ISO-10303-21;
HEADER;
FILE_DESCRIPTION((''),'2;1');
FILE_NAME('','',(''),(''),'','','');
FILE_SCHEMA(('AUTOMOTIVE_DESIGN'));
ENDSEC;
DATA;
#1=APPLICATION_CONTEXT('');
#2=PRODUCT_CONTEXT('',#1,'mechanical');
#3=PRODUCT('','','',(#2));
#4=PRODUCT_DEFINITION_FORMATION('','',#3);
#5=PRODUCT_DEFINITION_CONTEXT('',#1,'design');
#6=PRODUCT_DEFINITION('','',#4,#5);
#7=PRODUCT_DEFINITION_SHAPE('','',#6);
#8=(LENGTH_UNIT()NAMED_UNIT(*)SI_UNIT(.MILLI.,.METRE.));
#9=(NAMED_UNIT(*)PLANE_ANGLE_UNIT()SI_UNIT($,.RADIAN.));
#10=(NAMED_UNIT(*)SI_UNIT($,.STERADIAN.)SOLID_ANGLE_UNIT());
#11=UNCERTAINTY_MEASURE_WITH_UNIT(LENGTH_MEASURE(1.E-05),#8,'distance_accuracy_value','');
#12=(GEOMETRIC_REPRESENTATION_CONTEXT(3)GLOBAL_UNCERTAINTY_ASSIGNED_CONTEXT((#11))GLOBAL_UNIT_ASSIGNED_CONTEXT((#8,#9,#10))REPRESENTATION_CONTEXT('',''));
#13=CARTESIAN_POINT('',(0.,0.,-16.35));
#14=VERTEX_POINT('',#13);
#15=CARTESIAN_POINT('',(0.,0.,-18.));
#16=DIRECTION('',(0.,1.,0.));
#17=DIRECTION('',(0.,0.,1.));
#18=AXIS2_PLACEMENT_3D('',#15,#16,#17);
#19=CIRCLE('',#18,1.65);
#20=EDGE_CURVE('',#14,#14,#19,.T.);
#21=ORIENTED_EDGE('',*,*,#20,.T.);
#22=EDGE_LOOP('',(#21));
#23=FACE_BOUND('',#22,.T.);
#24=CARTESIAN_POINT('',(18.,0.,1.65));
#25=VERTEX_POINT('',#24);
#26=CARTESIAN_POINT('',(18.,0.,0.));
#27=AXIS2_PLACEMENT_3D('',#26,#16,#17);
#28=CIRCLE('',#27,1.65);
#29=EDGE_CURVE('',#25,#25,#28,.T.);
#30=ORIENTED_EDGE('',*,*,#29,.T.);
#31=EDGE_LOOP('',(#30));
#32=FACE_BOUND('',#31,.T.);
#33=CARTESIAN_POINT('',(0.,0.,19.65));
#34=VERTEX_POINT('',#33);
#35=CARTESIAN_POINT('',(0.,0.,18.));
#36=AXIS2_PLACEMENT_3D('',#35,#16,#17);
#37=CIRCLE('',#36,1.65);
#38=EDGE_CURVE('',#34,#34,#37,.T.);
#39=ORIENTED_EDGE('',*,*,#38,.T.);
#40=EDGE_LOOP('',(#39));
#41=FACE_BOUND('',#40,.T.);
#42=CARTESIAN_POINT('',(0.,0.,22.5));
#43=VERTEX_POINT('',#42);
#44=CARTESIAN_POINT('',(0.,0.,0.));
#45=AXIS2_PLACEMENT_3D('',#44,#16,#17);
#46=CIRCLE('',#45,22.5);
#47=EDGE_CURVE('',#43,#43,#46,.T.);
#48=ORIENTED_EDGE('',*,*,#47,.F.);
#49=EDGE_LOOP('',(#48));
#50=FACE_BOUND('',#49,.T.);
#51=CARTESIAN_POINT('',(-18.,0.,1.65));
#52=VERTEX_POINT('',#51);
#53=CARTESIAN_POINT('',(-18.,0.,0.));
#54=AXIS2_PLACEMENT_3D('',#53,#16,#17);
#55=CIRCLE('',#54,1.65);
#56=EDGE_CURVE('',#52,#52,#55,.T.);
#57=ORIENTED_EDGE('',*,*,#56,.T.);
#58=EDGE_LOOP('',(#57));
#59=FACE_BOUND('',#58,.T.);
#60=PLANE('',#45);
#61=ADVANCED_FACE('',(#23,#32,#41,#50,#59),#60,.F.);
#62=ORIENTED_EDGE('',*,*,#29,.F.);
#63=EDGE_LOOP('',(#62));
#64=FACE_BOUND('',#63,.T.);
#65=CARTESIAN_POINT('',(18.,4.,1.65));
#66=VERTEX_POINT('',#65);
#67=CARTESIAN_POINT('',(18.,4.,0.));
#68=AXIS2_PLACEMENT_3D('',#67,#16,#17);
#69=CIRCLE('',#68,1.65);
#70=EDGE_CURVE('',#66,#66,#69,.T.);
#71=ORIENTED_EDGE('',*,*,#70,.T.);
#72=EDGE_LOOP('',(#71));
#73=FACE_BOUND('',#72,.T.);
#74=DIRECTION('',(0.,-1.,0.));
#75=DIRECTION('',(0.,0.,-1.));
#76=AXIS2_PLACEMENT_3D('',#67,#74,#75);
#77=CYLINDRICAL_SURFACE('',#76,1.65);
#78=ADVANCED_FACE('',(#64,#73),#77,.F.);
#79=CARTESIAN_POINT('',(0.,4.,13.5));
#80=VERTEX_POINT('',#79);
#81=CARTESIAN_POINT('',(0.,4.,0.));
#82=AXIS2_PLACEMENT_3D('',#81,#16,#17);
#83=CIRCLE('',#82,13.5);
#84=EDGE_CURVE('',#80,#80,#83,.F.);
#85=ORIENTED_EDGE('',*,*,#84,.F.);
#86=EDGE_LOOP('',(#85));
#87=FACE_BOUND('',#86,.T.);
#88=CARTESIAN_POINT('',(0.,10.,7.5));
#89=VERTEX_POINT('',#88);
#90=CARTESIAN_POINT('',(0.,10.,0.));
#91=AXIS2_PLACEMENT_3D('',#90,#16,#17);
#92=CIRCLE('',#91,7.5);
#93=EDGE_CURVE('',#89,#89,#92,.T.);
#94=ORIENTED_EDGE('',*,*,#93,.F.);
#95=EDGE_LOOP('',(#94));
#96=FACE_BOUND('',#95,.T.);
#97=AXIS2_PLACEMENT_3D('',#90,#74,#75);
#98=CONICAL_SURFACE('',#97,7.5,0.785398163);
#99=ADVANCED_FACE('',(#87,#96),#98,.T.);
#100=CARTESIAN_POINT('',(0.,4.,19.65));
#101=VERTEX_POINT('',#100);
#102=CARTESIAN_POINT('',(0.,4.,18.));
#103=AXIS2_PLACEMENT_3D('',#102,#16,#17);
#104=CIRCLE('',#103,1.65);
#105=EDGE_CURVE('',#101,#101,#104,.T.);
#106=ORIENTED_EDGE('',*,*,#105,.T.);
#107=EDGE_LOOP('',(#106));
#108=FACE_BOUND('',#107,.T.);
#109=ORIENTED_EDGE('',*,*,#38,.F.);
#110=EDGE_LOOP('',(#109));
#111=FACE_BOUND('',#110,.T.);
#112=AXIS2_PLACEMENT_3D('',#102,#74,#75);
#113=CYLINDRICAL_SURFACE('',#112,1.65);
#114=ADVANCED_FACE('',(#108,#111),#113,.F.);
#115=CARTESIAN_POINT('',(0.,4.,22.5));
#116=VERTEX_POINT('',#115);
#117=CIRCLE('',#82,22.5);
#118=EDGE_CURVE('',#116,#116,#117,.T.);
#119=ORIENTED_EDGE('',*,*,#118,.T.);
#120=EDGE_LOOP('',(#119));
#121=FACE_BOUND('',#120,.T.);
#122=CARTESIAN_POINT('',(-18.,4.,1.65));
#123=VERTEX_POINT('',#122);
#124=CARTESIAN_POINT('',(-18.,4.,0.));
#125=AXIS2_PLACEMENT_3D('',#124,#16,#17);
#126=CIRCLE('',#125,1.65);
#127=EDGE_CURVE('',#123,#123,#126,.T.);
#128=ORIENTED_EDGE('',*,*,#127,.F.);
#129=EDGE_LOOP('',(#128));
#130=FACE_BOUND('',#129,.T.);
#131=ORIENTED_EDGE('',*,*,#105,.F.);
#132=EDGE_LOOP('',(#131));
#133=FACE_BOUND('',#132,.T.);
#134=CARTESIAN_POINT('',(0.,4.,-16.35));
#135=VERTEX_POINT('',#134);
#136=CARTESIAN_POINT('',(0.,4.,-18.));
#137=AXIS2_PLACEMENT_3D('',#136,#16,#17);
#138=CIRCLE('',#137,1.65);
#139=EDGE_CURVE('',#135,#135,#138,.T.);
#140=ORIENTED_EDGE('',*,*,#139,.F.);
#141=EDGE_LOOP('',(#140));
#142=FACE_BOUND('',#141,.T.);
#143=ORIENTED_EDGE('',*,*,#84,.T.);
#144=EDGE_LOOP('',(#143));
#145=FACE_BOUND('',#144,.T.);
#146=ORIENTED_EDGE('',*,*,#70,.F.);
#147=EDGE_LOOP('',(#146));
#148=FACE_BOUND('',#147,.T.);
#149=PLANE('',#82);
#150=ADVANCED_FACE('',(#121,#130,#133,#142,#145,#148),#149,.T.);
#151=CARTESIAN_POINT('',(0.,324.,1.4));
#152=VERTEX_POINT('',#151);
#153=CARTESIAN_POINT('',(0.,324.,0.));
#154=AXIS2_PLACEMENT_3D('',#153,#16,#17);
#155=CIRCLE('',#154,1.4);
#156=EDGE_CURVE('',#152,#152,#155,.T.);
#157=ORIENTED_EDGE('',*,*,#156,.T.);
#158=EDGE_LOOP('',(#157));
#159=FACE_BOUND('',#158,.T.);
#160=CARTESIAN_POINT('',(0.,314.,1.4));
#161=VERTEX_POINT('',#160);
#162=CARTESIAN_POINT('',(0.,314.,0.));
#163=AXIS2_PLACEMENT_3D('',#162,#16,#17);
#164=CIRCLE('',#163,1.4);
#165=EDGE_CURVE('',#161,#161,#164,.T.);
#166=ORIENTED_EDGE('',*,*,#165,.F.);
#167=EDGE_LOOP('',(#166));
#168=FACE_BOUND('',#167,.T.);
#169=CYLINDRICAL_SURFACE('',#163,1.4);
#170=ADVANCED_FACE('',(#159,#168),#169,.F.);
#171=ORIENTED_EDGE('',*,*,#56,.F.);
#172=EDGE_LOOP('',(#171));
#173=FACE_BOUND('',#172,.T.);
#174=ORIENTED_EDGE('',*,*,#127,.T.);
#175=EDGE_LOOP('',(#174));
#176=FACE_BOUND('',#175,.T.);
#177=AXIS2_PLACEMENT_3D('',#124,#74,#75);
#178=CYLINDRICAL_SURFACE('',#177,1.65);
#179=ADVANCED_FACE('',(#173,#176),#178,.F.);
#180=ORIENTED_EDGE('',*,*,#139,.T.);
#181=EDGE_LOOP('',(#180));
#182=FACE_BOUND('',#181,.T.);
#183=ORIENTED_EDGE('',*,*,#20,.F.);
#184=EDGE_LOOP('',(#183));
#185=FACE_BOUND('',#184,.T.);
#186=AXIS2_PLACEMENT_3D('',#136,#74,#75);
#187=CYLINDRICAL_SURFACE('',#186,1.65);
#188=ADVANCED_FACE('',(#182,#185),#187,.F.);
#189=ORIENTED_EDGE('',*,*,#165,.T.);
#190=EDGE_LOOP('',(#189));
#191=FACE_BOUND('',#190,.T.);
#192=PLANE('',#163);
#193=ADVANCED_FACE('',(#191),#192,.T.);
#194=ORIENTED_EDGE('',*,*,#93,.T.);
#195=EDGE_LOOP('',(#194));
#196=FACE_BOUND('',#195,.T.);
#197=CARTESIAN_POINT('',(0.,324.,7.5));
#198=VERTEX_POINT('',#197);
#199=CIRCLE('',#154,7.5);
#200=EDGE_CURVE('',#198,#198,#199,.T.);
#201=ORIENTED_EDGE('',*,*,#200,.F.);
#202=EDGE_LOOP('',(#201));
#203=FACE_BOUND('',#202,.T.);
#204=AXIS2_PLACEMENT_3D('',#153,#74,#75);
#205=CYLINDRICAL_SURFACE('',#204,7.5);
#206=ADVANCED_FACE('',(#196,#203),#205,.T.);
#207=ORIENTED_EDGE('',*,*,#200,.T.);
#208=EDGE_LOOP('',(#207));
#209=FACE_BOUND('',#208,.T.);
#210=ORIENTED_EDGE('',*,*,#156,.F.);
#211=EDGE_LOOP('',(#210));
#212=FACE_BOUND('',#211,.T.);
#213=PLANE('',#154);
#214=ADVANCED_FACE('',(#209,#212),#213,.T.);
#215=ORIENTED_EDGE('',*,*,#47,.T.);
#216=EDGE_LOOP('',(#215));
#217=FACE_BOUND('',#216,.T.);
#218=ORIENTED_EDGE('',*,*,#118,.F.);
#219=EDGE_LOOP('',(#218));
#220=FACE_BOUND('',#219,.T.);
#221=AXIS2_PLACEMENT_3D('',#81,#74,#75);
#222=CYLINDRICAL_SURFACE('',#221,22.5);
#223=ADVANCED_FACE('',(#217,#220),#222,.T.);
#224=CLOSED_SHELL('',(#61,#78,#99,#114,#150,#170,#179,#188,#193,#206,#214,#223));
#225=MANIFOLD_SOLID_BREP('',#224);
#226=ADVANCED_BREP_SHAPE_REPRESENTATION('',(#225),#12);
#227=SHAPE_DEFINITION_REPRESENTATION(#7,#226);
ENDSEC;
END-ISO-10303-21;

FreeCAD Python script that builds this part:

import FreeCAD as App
import Part
import Sketcher
from FreeCAD import Vector
Q = App.Units.Quantity


def edges_at(feature, points):
    """Names of the edges that pass closest to the given points."""
    edges = feature.Shape.Edges
    near = lambda p: min(range(len(edges)), key=lambda i: edges[i].distToShape(Part.Vertex(*p))[0])
    return sorted({f"Edge{near(p) + 1}" for p in points})

doc = App.newDocument("Part")
body = doc.addObject("PartDesign::Body", "Body")

# Sketch on XZ plane
sketch1 = doc.addObject("Sketcher::SketchObject", "Sketch")
body.addObject(sketch1)
sketch1.AttachmentSupport = (doc.XZ_Plane, [""])
sketch1.MapMode = "FlatFace"
sketch1.addGeometry([
    Part.Circle(Vector(0, 0, 0), Vector(0, 0, 1), 22.5),  # 0
    Part.Circle(Vector(0, -18, 0), Vector(0, 0, 1), 1.65),  # 1
    Part.Circle(Vector(-18, 0, 0), Vector(0, 0, 1), 1.65),  # 2
    Part.Circle(Vector(18, 0, 0), Vector(0, 0, 1), 1.65),  # 3
    Part.Circle(Vector(0, 18, 0), Vector(0, 0, 1), 1.65),  # 4
], False)
sketch1.addConstraint([
    Sketcher.Constraint("Coincident", 0, 3, -1, 1),
    Sketcher.Constraint("Equal", 1, 2),
    Sketcher.Constraint("Equal", 2, 3),
    Sketcher.Constraint("Equal", 3, 4),
    Sketcher.Constraint("Symmetric", 2, 3, 3, 3, -1, 1),
    Sketcher.Constraint("Symmetric", 1, 3, 4, 3, -1, 1),
    Sketcher.Constraint("PointOnObject", 1, 3, -2),
    Sketcher.Constraint("PointOnObject", 2, 3, -1),
    Sketcher.Constraint("Diameter", 0, Q("45 mm")),
    Sketcher.Constraint("Diameter", 1, Q("3.3 mm")),
    Sketcher.Constraint("DistanceY", 1, 3, -1, 1, Q("18 mm")),
    Sketcher.Constraint("DistanceX", 2, 3, -1, 1, Q("18 mm")),
])
pad1 = doc.addObject("PartDesign::Pad", "Pad")
body.addObject(pad1)
pad1.Profile = sketch1
pad1.Length = 4
pad1.Reversed = True

# Sketch on XZ plane
sketch2 = doc.addObject("Sketcher::SketchObject", "Sketch001")
body.addObject(sketch2)
sketch2.AttachmentSupport = (doc.XZ_Plane, [""])
sketch2.MapMode = "FlatFace"
sketch2.AttachmentOffset = App.Placement(Vector(0, 0, -4), App.Rotation())
sketch2.addGeometry(Part.Circle(Vector(0, 0, 0), Vector(0, 0, 1), 7.5), False)
sketch2.addConstraint([
    Sketcher.Constraint("Coincident", 0, 3, -1, 1),
    Sketcher.Constraint("Diameter", 0, Q("15 mm")),
])
pad2 = doc.addObject("PartDesign::Pad", "Pad001")
body.addObject(pad2)
pad2.Profile = sketch2
pad2.Length = 320
pad2.Reversed = True

# Sketch on XZ plane
sketch3 = doc.addObject("Sketcher::SketchObject", "Sketch002")
body.addObject(sketch3)
sketch3.AttachmentSupport = (doc.XZ_Plane, [""])
sketch3.MapMode = "FlatFace"
sketch3.AttachmentOffset = App.Placement(Vector(0, 0, -324), App.Rotation())
sketch3.addGeometry(Part.Circle(Vector(0, 0, 0), Vector(0, 0, 1), 1.4), False)
sketch3.addConstraint([
    Sketcher.Constraint("Coincident", 0, 3, -1, 1),
    Sketcher.Constraint("Diameter", 0, Q("2.8 mm")),
])
pocket1 = doc.addObject("PartDesign::Pocket", "Pocket")
body.addObject(pocket1)
pocket1.Profile = sketch3
pocket1.Length = 10
pocket1.Reversed = True
doc.recompute()

chamfer = doc.addObject("PartDesign::Chamfer", "Chamfer")
body.addObject(chamfer)
chamfer.Base = (pocket1, edges_at(pocket1, [(0, 4, -7.5)]))
chamfer.Size = 6

doc.recompute()
